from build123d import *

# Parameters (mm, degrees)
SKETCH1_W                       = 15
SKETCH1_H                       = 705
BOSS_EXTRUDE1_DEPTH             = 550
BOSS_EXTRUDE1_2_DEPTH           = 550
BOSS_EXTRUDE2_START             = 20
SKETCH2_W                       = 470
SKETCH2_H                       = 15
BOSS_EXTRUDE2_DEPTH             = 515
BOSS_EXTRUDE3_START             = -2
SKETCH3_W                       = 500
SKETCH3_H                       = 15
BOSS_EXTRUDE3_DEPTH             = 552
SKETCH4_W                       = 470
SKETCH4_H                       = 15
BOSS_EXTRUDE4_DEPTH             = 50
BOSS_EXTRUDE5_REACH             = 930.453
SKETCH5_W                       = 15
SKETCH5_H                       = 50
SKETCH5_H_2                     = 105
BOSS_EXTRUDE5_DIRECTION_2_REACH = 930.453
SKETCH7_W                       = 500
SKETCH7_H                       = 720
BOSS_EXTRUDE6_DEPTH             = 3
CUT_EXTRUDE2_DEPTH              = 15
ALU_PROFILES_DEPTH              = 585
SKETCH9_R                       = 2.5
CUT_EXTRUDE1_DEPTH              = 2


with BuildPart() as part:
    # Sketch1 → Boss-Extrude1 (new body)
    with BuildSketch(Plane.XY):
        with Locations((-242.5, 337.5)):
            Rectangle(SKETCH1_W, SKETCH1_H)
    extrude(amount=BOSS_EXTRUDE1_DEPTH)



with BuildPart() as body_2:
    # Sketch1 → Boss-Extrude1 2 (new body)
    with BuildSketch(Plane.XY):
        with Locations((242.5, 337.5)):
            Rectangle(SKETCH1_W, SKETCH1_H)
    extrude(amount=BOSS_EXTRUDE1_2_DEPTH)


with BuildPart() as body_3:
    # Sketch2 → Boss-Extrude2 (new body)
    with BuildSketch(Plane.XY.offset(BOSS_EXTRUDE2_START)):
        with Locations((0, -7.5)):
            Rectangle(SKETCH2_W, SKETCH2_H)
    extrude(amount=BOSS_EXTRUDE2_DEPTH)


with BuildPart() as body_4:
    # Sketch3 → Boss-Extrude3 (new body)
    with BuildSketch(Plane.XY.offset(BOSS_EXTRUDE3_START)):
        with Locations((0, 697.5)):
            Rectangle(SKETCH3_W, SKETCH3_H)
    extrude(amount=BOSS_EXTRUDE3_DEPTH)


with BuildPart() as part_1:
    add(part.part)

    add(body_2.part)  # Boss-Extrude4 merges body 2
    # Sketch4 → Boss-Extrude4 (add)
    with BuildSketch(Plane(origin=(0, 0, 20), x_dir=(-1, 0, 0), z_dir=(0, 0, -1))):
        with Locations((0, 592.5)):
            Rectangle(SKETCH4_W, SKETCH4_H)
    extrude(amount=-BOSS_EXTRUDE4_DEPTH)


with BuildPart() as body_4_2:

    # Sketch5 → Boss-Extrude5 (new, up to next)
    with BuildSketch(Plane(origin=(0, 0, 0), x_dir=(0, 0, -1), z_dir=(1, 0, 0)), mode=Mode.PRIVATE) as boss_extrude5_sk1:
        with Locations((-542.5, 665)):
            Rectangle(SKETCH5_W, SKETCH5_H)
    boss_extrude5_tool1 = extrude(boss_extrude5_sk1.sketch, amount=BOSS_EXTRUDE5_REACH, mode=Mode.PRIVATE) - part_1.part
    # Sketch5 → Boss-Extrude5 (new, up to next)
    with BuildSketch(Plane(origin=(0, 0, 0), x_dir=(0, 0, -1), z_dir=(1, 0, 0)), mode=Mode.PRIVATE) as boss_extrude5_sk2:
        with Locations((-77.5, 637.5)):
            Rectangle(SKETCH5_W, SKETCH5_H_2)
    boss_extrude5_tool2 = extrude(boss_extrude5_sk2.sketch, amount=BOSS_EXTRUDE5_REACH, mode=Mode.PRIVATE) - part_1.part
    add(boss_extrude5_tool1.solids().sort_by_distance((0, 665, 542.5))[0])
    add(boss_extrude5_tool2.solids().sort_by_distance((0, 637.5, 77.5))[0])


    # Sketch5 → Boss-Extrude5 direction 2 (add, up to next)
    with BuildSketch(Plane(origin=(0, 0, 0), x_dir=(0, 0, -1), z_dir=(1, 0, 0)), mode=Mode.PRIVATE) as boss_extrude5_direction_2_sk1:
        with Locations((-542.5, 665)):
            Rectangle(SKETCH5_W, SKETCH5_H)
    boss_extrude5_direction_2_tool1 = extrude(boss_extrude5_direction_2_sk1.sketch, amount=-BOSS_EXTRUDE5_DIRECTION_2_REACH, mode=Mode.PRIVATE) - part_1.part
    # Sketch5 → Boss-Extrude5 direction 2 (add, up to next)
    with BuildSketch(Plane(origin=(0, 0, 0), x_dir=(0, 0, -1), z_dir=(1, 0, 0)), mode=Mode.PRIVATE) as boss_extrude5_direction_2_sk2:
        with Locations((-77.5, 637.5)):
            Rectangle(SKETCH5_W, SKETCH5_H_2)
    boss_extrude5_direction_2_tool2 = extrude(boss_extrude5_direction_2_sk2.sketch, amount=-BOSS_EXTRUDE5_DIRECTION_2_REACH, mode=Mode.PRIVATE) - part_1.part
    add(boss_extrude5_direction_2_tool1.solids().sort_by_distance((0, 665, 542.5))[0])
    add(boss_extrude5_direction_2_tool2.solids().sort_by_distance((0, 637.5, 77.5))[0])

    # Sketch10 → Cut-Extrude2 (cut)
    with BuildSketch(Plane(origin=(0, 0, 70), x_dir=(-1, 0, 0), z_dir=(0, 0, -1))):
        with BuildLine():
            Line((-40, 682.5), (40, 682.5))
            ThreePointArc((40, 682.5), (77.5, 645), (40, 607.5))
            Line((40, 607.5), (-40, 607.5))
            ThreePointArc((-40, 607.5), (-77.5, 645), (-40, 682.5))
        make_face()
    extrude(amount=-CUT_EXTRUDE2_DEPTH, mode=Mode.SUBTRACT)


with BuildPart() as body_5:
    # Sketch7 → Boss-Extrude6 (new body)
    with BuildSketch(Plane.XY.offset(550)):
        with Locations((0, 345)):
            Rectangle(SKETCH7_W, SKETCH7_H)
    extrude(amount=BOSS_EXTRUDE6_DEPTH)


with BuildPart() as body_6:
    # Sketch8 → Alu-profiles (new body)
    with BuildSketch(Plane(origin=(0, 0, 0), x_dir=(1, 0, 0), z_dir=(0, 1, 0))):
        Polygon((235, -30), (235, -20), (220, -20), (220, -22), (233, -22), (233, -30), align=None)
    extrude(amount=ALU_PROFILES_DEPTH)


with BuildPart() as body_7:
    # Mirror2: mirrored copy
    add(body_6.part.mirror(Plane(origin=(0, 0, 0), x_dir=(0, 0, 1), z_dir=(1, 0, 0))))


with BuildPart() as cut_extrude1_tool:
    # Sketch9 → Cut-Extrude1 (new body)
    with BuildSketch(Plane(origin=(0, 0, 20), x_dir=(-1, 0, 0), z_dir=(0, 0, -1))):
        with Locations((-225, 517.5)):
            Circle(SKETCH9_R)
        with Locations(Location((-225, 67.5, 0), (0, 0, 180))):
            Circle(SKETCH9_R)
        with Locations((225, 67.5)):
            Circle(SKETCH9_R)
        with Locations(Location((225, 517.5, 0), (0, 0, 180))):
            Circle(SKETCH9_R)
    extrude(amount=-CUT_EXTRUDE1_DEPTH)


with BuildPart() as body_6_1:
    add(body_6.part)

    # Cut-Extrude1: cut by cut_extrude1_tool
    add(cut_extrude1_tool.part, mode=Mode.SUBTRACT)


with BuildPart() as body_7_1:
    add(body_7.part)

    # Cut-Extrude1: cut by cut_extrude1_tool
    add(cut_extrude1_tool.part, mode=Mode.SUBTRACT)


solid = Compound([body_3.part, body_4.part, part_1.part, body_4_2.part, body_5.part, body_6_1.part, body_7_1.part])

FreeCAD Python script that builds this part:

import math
import FreeCAD as App
import Part
import Sketcher

doc = App.newDocument("Part")
params = doc.addObject("Spreadsheet::Sheet", "Params")
for row, (alias, value) in enumerate([
    ("sketch1_width", "15 mm"),
    ("sketch1_height", "705 mm"),
    ("pad1_length", "550 mm"),
    ("sketch2_width", "15 mm"),
    ("sketch2_height", "705 mm"),
    ("pad2_length", "550 mm"),
    ("sketch3_width", "470 mm"),
    ("sketch3_height", "15 mm"),
    ("pad3_length", "515 mm"),
    ("sketch4_width", "500 mm"),
    ("sketch4_height", "15 mm"),
    ("pad4_length", "552 mm"),
    ("sketch5_width", "470 mm"),
    ("sketch5_height", "15 mm"),
    ("pad5_length", "50 mm"),
    ("sketch6_width", "50 mm"),
    ("sketch6_height", "15 mm"),
    ("pad6_length", "235 mm"),
    ("sketch7_width", "105 mm"),
    ("sketch7_height", "15 mm"),
    ("pad7_length", "235 mm"),
    ("sketch8_width", "50 mm"),
    ("sketch8_height", "15 mm"),
    ("pad8_length", "235 mm"),
    ("sketch9_width", "105 mm"),
    ("sketch9_height", "15 mm"),
    ("pad9_length", "235 mm"),
    ("sketch10_radius", "37.5 mm"),
    ("sketch10_width", "80 mm"),
    ("pocket1_length", "15 mm"),
    ("sketch11_width", "500 mm"),
    ("sketch11_height", "720 mm"),
    ("pad10_length", "3 mm"),
    ("sketch12_width", "15 mm"),
    ("sketch12_width2", "13 mm"),
    ("sketch12_height", "10 mm"),
    ("pad11_length", "585 mm"),
    ("sketch13_diameter", "5 mm"),
    ("pad12_length", "2 mm"),
], start=1):
    params.set(f"A{row}", alias)
    params.set(f"B{row}", "=" + value)
    params.setAlias(f"B{row}", alias)

body = doc.addObject("PartDesign::Body", "Body")

sketch1 = body.newObject("Sketcher::SketchObject", "Sketch")
sketch1.AttachmentSupport = (doc.getObject("XY_Plane"), [""])
sketch1.MapMode = "FlatFace"
sketch1.addGeometry(Part.LineSegment(App.Vector(-250, 690, 0), App.Vector(-250, -15, 0)), False)
sketch1.addGeometry(Part.LineSegment(App.Vector(-250, -15, 0), App.Vector(-235, -15, 0)), False)
sketch1.addGeometry(Part.LineSegment(App.Vector(-235, -15, 0), App.Vector(-235, 690, 0)), False)
sketch1.addGeometry(Part.LineSegment(App.Vector(-235, 690, 0), App.Vector(-250, 690, 0)), False)
sketch1.addConstraint(Sketcher.Constraint("Coincident", 0, 2, 1, 1))
sketch1.addConstraint(Sketcher.Constraint("Coincident", 1, 2, 2, 1))
sketch1.addConstraint(Sketcher.Constraint("Coincident", 2, 2, 3, 1))
sketch1.addConstraint(Sketcher.Constraint("Coincident", 3, 2, 0, 1))
sketch1.addConstraint(Sketcher.Constraint("Vertical", 0))
sketch1.addConstraint(Sketcher.Constraint("Horizontal", 1))
sketch1.addConstraint(Sketcher.Constraint("Vertical", 2))
sketch1.addConstraint(Sketcher.Constraint("Horizontal", 3))
sketch1.addConstraint(Sketcher.Constraint("DistanceX", 1, 1, 1, 2, 15.0))
sketch1.addConstraint(Sketcher.Constraint("DistanceY", 0, 2, 0, 1, 705.0))
sketch1.addConstraint(Sketcher.Constraint("DistanceX", 0, 2, -1, 1, 250.0))
sketch1.addConstraint(Sketcher.Constraint("DistanceY", 0, 2, -1, 1, 15.0))
sketch1.setExpression("Constraints[8]", "Params.sketch1_width")
sketch1.setExpression("Constraints[9]", "Params.sketch1_height")
pad1 = body.newObject("PartDesign::Pad", "Pad")
pad1.Profile = sketch1
pad1.setExpression("Length", "Params.pad1_length")
body2 = doc.addObject("PartDesign::Body", "Body001")

sketch2 = body2.newObject("Sketcher::SketchObject", "Sketch001")
sketch2.AttachmentSupport = (doc.getObject("XY_Plane001"), [""])
sketch2.MapMode = "FlatFace"
sketch2.addGeometry(Part.LineSegment(App.Vector(235, 690, 0), App.Vector(235, -15, 0)), False)
sketch2.addGeometry(Part.LineSegment(App.Vector(235, -15, 0), App.Vector(250, -15, 0)), False)
sketch2.addGeometry(Part.LineSegment(App.Vector(250, -15, 0), App.Vector(250, 690, 0)), False)
sketch2.addGeometry(Part.LineSegment(App.Vector(250, 690, 0), App.Vector(235, 690, 0)), False)
sketch2.addConstraint(Sketcher.Constraint("Coincident", 0, 2, 1, 1))
sketch2.addConstraint(Sketcher.Constraint("Coincident", 1, 2, 2, 1))
sketch2.addConstraint(Sketcher.Constraint("Coincident", 2, 2, 3, 1))
sketch2.addConstraint(Sketcher.Constraint("Coincident", 3, 2, 0, 1))
sketch2.addConstraint(Sketcher.Constraint("Vertical", 0))
sketch2.addConstraint(Sketcher.Constraint("Horizontal", 1))
sketch2.addConstraint(Sketcher.Constraint("Vertical", 2))
sketch2.addConstraint(Sketcher.Constraint("Horizontal", 3))
sketch2.addConstraint(Sketcher.Constraint("DistanceX", 1, 1, 1, 2, 15.0))
sketch2.addConstraint(Sketcher.Constraint("DistanceY", 0, 2, 0, 1, 705.0))
sketch2.addConstraint(Sketcher.Constraint("DistanceX", -1, 1, 0, 2, 235.0))
sketch2.addConstraint(Sketcher.Constraint("DistanceY", 0, 2, -1, 1, 15.0))
sketch2.setExpression("Constraints[8]", "Params.sketch2_width")
sketch2.setExpression("Constraints[9]", "Params.sketch2_height")
pad2 = body2.newObject("PartDesign::Pad", "Pad001")
pad2.Profile = sketch2
pad2.setExpression("Length", "Params.pad2_length")
body3 = doc.addObject("PartDesign::Body", "Body002")

sketch3 = body3.newObject("Sketcher::SketchObject", "Sketch002")
sketch3.AttachmentSupport = (doc.getObject("XY_Plane002"), [""])
sketch3.MapMode = "FlatFace"
sketch3.AttachmentOffset = App.Placement(App.Vector(0, 0, 20), App.Rotation())
sketch3.addGeometry(Part.LineSegment(App.Vector(-235, 0, 0), App.Vector(-235, -15, 0)), False)
sketch3.addGeometry(Part.LineSegment(App.Vector(-235, -15, 0), App.Vector(235, -15, 0)), False)
sketch3.addGeometry(Part.LineSegment(App.Vector(235, -15, 0), App.Vector(235, 0, 0)), False)
sketch3.addGeometry(Part.LineSegment(App.Vector(235, 0, 0), App.Vector(-235, 0, 0)), False)
sketch3.addConstraint(Sketcher.Constraint("Coincident", 0, 2, 1, 1))
sketch3.addConstraint(Sketcher.Constraint("Coincident", 1, 2, 2, 1))
sketch3.addConstraint(Sketcher.Constraint("Coincident", 2, 2, 3, 1))
sketch3.addConstraint(Sketcher.Constraint("Coincident", 3, 2, 0, 1))
sketch3.addConstraint(Sketcher.Constraint("Vertical", 0))
sketch3.addConstraint(Sketcher.Constraint("Horizontal", 1))
sketch3.addConstraint(Sketcher.Constraint("Vertical", 2))
sketch3.addConstraint(Sketcher.Constraint("Horizontal", 3))
sketch3.addConstraint(Sketcher.Constraint("Symmetric", 2, 2, 3, 2, -1, 1))
sketch3.addConstraint(Sketcher.Constraint("DistanceX", 1, 1, 1, 2, 470.0))
sketch3.addConstraint(Sketcher.Constraint("DistanceY", 0, 2, 0, 1, 15.0))
sketch3.setExpression("Constraints[9]", "Params.sketch3_width")
sketch3.setExpression("Constraints[10]", "Params.sketch3_height")
pad3 = body3.newObject("PartDesign::Pad", "Pad002")
pad3.Profile = sketch3
pad3.setExpression("Length", "Params.pad3_length")
body4 = doc.addObject("PartDesign::Body", "Body003")

sketch4 = body4.newObject("Sketcher::SketchObject", "Sketch003")
sketch4.AttachmentSupport = (doc.getObject("XY_Plane003"), [""])
sketch4.MapMode = "FlatFace"
sketch4.AttachmentOffset = App.Placement(App.Vector(0, 0, -2), App.Rotation())
sketch4.addGeometry(Part.LineSegment(App.Vector(-250, 705, 0), App.Vector(-250, 690, 0)), False)
sketch4.addGeometry(Part.LineSegment(App.Vector(-250, 690, 0), App.Vector(250, 690, 0)), False)
sketch4.addGeometry(Part.LineSegment(App.Vector(250, 690, 0), App.Vector(250, 705, 0)), False)
sketch4.addGeometry(Part.LineSegment(App.Vector(250, 705, 0), App.Vector(-250, 705, 0)), False)
sketch4.addConstraint(Sketcher.Constraint("Coincident", 0, 2, 1, 1))
sketch4.addConstraint(Sketcher.Constraint("Coincident", 1, 2, 2, 1))
sketch4.addConstraint(Sketcher.Constraint("Coincident", 2, 2, 3, 1))
sketch4.addConstraint(Sketcher.Constraint("Coincident", 3, 2, 0, 1))
sketch4.addConstraint(Sketcher.Constraint("Vertical", 0))
sketch4.addConstraint(Sketcher.Constraint("Horizontal", 1))
sketch4.addConstraint(Sketcher.Constraint("Vertical", 2))
sketch4.addConstraint(Sketcher.Constraint("Horizontal", 3))
sketch4.addConstraint(Sketcher.Constraint("DistanceX", 1, 1, 1, 2, 500.0))
sketch4.addConstraint(Sketcher.Constraint("DistanceY", 0, 2, 0, 1, 15.0))
sketch4.addConstraint(Sketcher.Constraint("DistanceX", 0, 2, -1, 1, 250.0))
sketch4.addConstraint(Sketcher.Constraint("DistanceY", -1, 1, 0, 2, 690.0))
sketch4.setExpression("Constraints[8]", "Params.sketch4_width")
sketch4.setExpression("Constraints[9]", "Params.sketch4_height")
pad4 = body4.newObject("PartDesign::Pad", "Pad003")
pad4.Profile = sketch4
pad4.setExpression("Length", "Params.pad4_length")
body.AllowCompound = True
doc.recompute()

boolean = body.newObject("PartDesign::Boolean", "Boolean")
boolean.Type = "Fuse"
boolean.addObjects([body2])

sketch5 = body.newObject("Sketcher::SketchObject", "Sketch004")
sketch5.AttachmentSupport = (doc.getObject("XY_Plane"), [""])
sketch5.MapMode = "FlatFace"
sketch5.AttachmentOffset = App.Placement(App.Vector(0, 0, 20), App.Rotation())
sketch5.addGeometry(Part.LineSegment(App.Vector(235, 600, 0), App.Vector(235, 585, 0)), False)
sketch5.addGeometry(Part.LineSegment(App.Vector(235, 585, 0), App.Vector(-235, 585, 0)), False)
sketch5.addGeometry(Part.LineSegment(App.Vector(-235, 585, 0), App.Vector(-235, 600, 0)), False)
sketch5.addGeometry(Part.LineSegment(App.Vector(-235, 600, 0), App.Vector(235, 600, 0)), False)
sketch5.addConstraint(Sketcher.Constraint("Coincident", 0, 2, 1, 1))
sketch5.addConstraint(Sketcher.Constraint("Coincident", 1, 2, 2, 1))
sketch5.addConstraint(Sketcher.Constraint("Coincident", 2, 2, 3, 1))
sketch5.addConstraint(Sketcher.Constraint("Coincident", 3, 2, 0, 1))
sketch5.addConstraint(Sketcher.Constraint("Vertical", 0))
sketch5.addConstraint(Sketcher.Constraint("Horizontal", 1))
sketch5.addConstraint(Sketcher.Constraint("Vertical", 2))
sketch5.addConstraint(Sketcher.Constraint("Horizontal", 3))
sketch5.addConstraint(Sketcher.Constraint("DistanceX", 1, 2, 1, 1, 470.0))
sketch5.addConstraint(Sketcher.Constraint("DistanceY", 0, 2, 0, 1, 15.0))
sketch5.addConstraint(Sketcher.Constraint("DistanceX", -1, 1, 0, 2, 235.0))
sketch5.addConstraint(Sketcher.Constraint("DistanceY", -1, 1, 0, 2, 585.0))
sketch5.setExpression("Constraints[8]", "Params.sketch5_width")
sketch5.setExpression("Constraints[9]", "Params.sketch5_height")
pad5 = body.newObject("PartDesign::Pad", "Pad004")
pad5.Profile = sketch5
pad5.setExpression("Length", "Params.pad5_length")
body5 = doc.addObject("PartDesign::Body", "Body004")
body5.AllowCompound = True

sketch6 = body5.newObject("Sketcher::SketchObject", "Sketch005")
sketch6.AttachmentSupport = (doc.getObject("YZ_Plane004"), [""])
sketch6.MapMode = "FlatFace"
sketch6.addGeometry(Part.LineSegment(App.Vector(690, 550, 0), App.Vector(640, 550, 0)), False)
sketch6.addGeometry(Part.LineSegment(App.Vector(640, 550, 0), App.Vector(640, 535, 0)), False)
sketch6.addGeometry(Part.LineSegment(App.Vector(640, 535, 0), App.Vector(690, 535, 0)), False)
sketch6.addGeometry(Part.LineSegment(App.Vector(690, 535, 0), App.Vector(690, 550, 0)), False)
sketch6.addConstraint(Sketcher.Constraint("Coincident", 0, 2, 1, 1))
sketch6.addConstraint(Sketcher.Constraint("Coincident", 1, 2, 2, 1))
sketch6.addConstraint(Sketcher.Constraint("Coincident", 2, 2, 3, 1))
sketch6.addConstraint(Sketcher.Constraint("Coincident", 3, 2, 0, 1))
sketch6.addConstraint(Sketcher.Constraint("Horizontal", 0))
sketch6.addConstraint(Sketcher.Constraint("Vertical", 1))
sketch6.addConstraint(Sketcher.Constraint("Horizontal", 2))
sketch6.addConstraint(Sketcher.Constraint("Vertical", 3))
sketch6.addConstraint(Sketcher.Constraint("DistanceX", 0, 2, 0, 1, 50.0))
sketch6.addConstraint(Sketcher.Constraint("DistanceY", 1, 2, 1, 1, 15.0))
sketch6.addConstraint(Sketcher.Constraint("DistanceX", -1, 1, 0, 2, 640.0))
sketch6.addConstraint(Sketcher.Constraint("DistanceY", -1, 1, 0, 2, 550.0))
sketch6.setExpression("Constraints[8]", "Params.sketch6_width")
sketch6.setExpression("Constraints[9]", "Params.sketch6_height")
pad6 = body5.newObject("PartDesign::Pad", "Pad005")
pad6.Profile = sketch6
pad6.setExpression("Length", "Params.pad6_length")

sketch7 = body5.newObject("Sketcher::SketchObject", "Sketch006")
sketch7.AttachmentSupport = (doc.getObject("YZ_Plane004"), [""])
sketch7.MapMode = "FlatFace"
sketch7.addGeometry(Part.LineSegment(App.Vector(690, 85, 0), App.Vector(585, 85, 0)), False)
sketch7.addGeometry(Part.LineSegment(App.Vector(585, 85, 0), App.Vector(585, 70, 0)), False)
sketch7.addGeometry(Part.LineSegment(App.Vector(585, 70, 0), App.Vector(690, 70, 0)), False)
sketch7.addGeometry(Part.LineSegment(App.Vector(690, 70, 0), App.Vector(690, 85, 0)), False)
sketch7.addConstraint(Sketcher.Constraint("Coincident", 0, 2, 1, 1))
sketch7.addConstraint(Sketcher.Constraint("Coincident", 1, 2, 2, 1))
sketch7.addConstraint(Sketcher.Constraint("Coincident", 2, 2, 3, 1))
sketch7.addConstraint(Sketcher.Constraint("Coincident", 3, 2, 0, 1))
sketch7.addConstraint(Sketcher.Constraint("Horizontal", 0))
sketch7.addConstraint(Sketcher.Constraint("Vertical", 1))
sketch7.addConstraint(Sketcher.Constraint("Horizontal", 2))
sketch7.addConstraint(Sketcher.Constraint("Vertical", 3))
sketch7.addConstraint(Sketcher.Constraint("DistanceX", 0, 2, 0, 1, 105.0))
sketch7.addConstraint(Sketcher.Constraint("DistanceY", 1, 2, 1, 1, 15.0))
sketch7.addConstraint(Sketcher.Constraint("DistanceX", -1, 1, 0, 2, 585.0))
sketch7.addConstraint(Sketcher.Constraint("DistanceY", -1, 1, 0, 2, 85.0))
sketch7.setExpression("Constraints[8]", "Params.sketch7_width")
sketch7.setExpression("Constraints[9]", "Params.sketch7_height")
pad7 = body5.newObject("PartDesign::Pad", "Pad006")
pad7.Profile = sketch7
pad7.setExpression("Length", "Params.pad7_length")

sketch8 = body5.newObject("Sketcher::SketchObject", "Sketch007")
sketch8.AttachmentSupport = (doc.getObject("YZ_Plane004"), [""])
sketch8.MapMode = "FlatFace"
sketch8.addGeometry(Part.LineSegment(App.Vector(690, 550, 0), App.Vector(640, 550, 0)), False)
sketch8.addGeometry(Part.LineSegment(App.Vector(640, 550, 0), App.Vector(640, 535, 0)), False)
sketch8.addGeometry(Part.LineSegment(App.Vector(640, 535, 0), App.Vector(690, 535, 0)), False)
sketch8.addGeometry(Part.LineSegment(App.Vector(690, 535, 0), App.Vector(690, 550, 0)), False)
sketch8.addConstraint(Sketcher.Constraint("Coincident", 0, 2, 1, 1))
sketch8.addConstraint(Sketcher.Constraint("Coincident", 1, 2, 2, 1))
sketch8.addConstraint(Sketcher.Constraint("Coincident", 2, 2, 3, 1))
sketch8.addConstraint(Sketcher.Constraint("Coincident", 3, 2, 0, 1))
sketch8.addConstraint(Sketcher.Constraint("Horizontal", 0))
sketch8.addConstraint(Sketcher.Constraint("Vertical", 1))
sketch8.addConstraint(Sketcher.Constraint("Horizontal", 2))
sketch8.addConstraint(Sketcher.Constraint("Vertical", 3))
sketch8.addConstraint(Sketcher.Constraint("DistanceX", 0, 2, 0, 1, 50.0))
sketch8.addConstraint(Sketcher.Constraint("DistanceY", 1, 2, 1, 1, 15.0))
sketch8.addConstraint(Sketcher.Constraint("DistanceX", -1, 1, 0, 2, 640.0))
sketch8.addConstraint(Sketcher.Constraint("DistanceY", -1, 1, 0, 2, 550.0))
sketch8.setExpression("Constraints[8]", "Params.sketch8_width")
sketch8.setExpression("Constraints[9]", "Params.sketch8_height")
pad8 = body5.newObject("PartDesign::Pad", "Pad007")
pad8.Profile = sketch8
pad8.setExpression("Length", "Params.pad8_length")
pad8.Reversed = True

sketch9 = body5.newObject("Sketcher::SketchObject", "Sketch008")
sketch9.AttachmentSupport = (doc.getObject("YZ_Plane004"), [""])
sketch9.MapMode = "FlatFace"
sketch9.addGeometry(Part.LineSegment(App.Vector(690, 85, 0), App.Vector(585, 85, 0)), False)
sketch9.addGeometry(Part.LineSegment(App.Vector(585, 85, 0), App.Vector(585, 70, 0)), False)
sketch9.addGeometry(Part.LineSegment(App.Vector(585, 70, 0), App.Vector(690, 70, 0)), False)
sketch9.addGeometry(Part.LineSegment(App.Vector(690, 70, 0), App.Vector(690, 85, 0)), False)
sketch9.addConstraint(Sketcher.Constraint("Coincident", 0, 2, 1, 1))
sketch9.addConstraint(Sketcher.Constraint("Coincident", 1, 2, 2, 1))
sketch9.addConstraint(Sketcher.Constraint("Coincident", 2, 2, 3, 1))
sketch9.addConstraint(Sketcher.Constraint("Coincident", 3, 2, 0, 1))
sketch9.addConstraint(Sketcher.Constraint("Horizontal", 0))
sketch9.addConstraint(Sketcher.Constraint("Vertical", 1))
sketch9.addConstraint(Sketcher.Constraint("Horizontal", 2))
sketch9.addConstraint(Sketcher.Constraint("Vertical", 3))
sketch9.addConstraint(Sketcher.Constraint("DistanceX", 0, 2, 0, 1, 105.0))
sketch9.addConstraint(Sketcher.Constraint("DistanceY", 1, 2, 1, 1, 15.0))
sketch9.addConstraint(Sketcher.Constraint("DistanceX", -1, 1, 0, 2, 585.0))
sketch9.addConstraint(Sketcher.Constraint("DistanceY", -1, 1, 0, 2, 85.0))
sketch9.setExpression("Constraints[8]", "Params.sketch9_width")
sketch9.setExpression("Constraints[9]", "Params.sketch9_height")
pad9 = body5.newObject("PartDesign::Pad", "Pad008")
pad9.Profile = sketch9
pad9.setExpression("Length", "Params.pad9_length")
pad9.Reversed = True

sketch10 = body5.newObject("Sketcher::SketchObject", "Sketch009")
sketch10.AttachmentSupport = (doc.getObject("XY_Plane004"), [""])
sketch10.MapMode = "FlatFace"
sketch10.AttachmentOffset = App.Placement(App.Vector(0, 0, 70), App.Rotation())
sketch10.addGeometry(Part.LineSegment(App.Vector(-40, 682, 0), App.Vector(40, 682, 0)), False)
sketch10.addGeometry(Part.ArcOfCircle(Part.Circle(App.Vector(40, 645, 0), App.Vector(0, 0, 1), 38), math.radians(-90), math.radians(90)), False)
sketch10.addGeometry(Part.LineSegment(App.Vector(40, 608, 0), App.Vector(-40, 608, 0)), False)
sketch10.addGeometry(Part.ArcOfCircle(Part.Circle(App.Vector(-40, 645, 0), App.Vector(0, 0, 1), 38), math.radians(90), math.radians(270)), False)
sketch10.addConstraint(Sketcher.Constraint("Tangent", 0, 2, 1, 2))
sketch10.addConstraint(Sketcher.Constraint("Tangent", 1, 1, 2, 1))
sketch10.addConstraint(Sketcher.Constraint("Tangent", 2, 2, 3, 2))
sketch10.addConstraint(Sketcher.Constraint("Tangent", 3, 1, 0, 1))
sketch10.addConstraint(Sketcher.Constraint("Horizontal", 0))
sketch10.addConstraint(Sketcher.Constraint("Horizontal", 2))
sketch10.addConstraint(Sketcher.Constraint("Radius", 1, 37.5))
sketch10.addConstraint(Sketcher.Constraint("DistanceX", 0, 1, 0, 2, 80.0))
sketch10.addConstraint(Sketcher.Constraint("DistanceX", -1, 1, 1, 3, 40.0))
sketch10.addConstraint(Sketcher.Constraint("DistanceY", -1, 1, 1, 3, 645.0))
sketch10.setExpression("Constraints[6]", "Params.sketch10_radius")
sketch10.setExpression("Constraints[7]", "Params.sketch10_width")
pocket1 = body5.newObject("PartDesign::Pocket", "Pocket")
pocket1.Profile = sketch10
pocket1.setExpression("Length", "Params.pocket1_length")
pocket1.Reversed = True
body6 = doc.addObject("PartDesign::Body", "Body005")

sketch11 = body6.newObject("Sketcher::SketchObject", "Sketch010")
sketch11.AttachmentSupport = (doc.getObject("XY_Plane005"), [""])
sketch11.MapMode = "FlatFace"
sketch11.AttachmentOffset = App.Placement(App.Vector(0, 0, 550), App.Rotation())
sketch11.addGeometry(Part.LineSegment(App.Vector(-250, 705, 0), App.Vector(-250, -15, 0)), False)
sketch11.addGeometry(Part.LineSegment(App.Vector(-250, -15, 0), App.Vector(250, -15, 0)), False)
sketch11.addGeometry(Part.LineSegment(App.Vector(250, -15, 0), App.Vector(250, 705, 0)), False)
sketch11.addGeometry(Part.LineSegment(App.Vector(250, 705, 0), App.Vector(-250, 705, 0)), False)
sketch11.addConstraint(Sketcher.Constraint("Coincident", 0, 2, 1, 1))
sketch11.addConstraint(Sketcher.Constraint("Coincident", 1, 2, 2, 1))
sketch11.addConstraint(Sketcher.Constraint("Coincident", 2, 2, 3, 1))
sketch11.addConstraint(Sketcher.Constraint("Coincident", 3, 2, 0, 1))
sketch11.addConstraint(Sketcher.Constraint("Vertical", 0))
sketch11.addConstraint(Sketcher.Constraint("Horizontal", 1))
sketch11.addConstraint(Sketcher.Constraint("Vertical", 2))
sketch11.addConstraint(Sketcher.Constraint("Horizontal", 3))
sketch11.addConstraint(Sketcher.Constraint("DistanceX", 1, 1, 1, 2, 500.0))
sketch11.addConstraint(Sketcher.Constraint("DistanceY", 0, 2, 0, 1, 720.0))
sketch11.addConstraint(Sketcher.Constraint("DistanceX", 0, 2, -1, 1, 250.0))
sketch11.addConstraint(Sketcher.Constraint("DistanceY", 0, 2, -1, 1, 15.0))
sketch11.setExpression("Constraints[8]", "Params.sketch11_width")
sketch11.setExpression("Constraints[9]", "Params.sketch11_height")
pad10 = body6.newObject("PartDesign::Pad", "Pad009")
pad10.Profile = sketch11
pad10.setExpression("Length", "Params.pad10_length")
body7 = doc.addObject("PartDesign::Body", "Body006")

sketch12 = body7.newObject("Sketcher::SketchObject", "Sketch011")
sketch12.AttachmentSupport = (doc.getObject("XZ_Plane006"), [""])
sketch12.MapMode = "FlatFace"
sketch12.addGeometry(Part.LineSegment(App.Vector(235, 30, 0), App.Vector(235, 20, 0)), False)
sketch12.addGeometry(Part.LineSegment(App.Vector(235, 20, 0), App.Vector(220, 20, 0)), False)
sketch12.addGeometry(Part.LineSegment(App.Vector(220, 20, 0), App.Vector(220, 22, 0)), False)
sketch12.addGeometry(Part.LineSegment(App.Vector(220, 22, 0), App.Vector(233, 22, 0)), False)
sketch12.addGeometry(Part.LineSegment(App.Vector(233, 22, 0), App.Vector(233, 30, 0)), False)
sketch12.addGeometry(Part.LineSegment(App.Vector(233, 30, 0), App.Vector(235, 30, 0)), False)
sketch12.addConstraint(Sketcher.Constraint("Coincident", 0, 2, 1, 1))
sketch12.addConstraint(Sketcher.Constraint("Coincident", 1, 2, 2, 1))
sketch12.addConstraint(Sketcher.Constraint("Coincident", 2, 2, 3, 1))
sketch12.addConstraint(Sketcher.Constraint("Coincident", 3, 2, 4, 1))
sketch12.addConstraint(Sketcher.Constraint("Coincident", 4, 2, 5, 1))
sketch12.addConstraint(Sketcher.Constraint("Coincident", 5, 2, 0, 1))
sketch12.addConstraint(Sketcher.Constraint("Vertical", 0))
sketch12.addConstraint(Sketcher.Constraint("Horizontal", 1))
sketch12.addConstraint(Sketcher.Constraint("Vertical", 2))
sketch12.addConstraint(Sketcher.Constraint("Horizontal", 3))
sketch12.addConstraint(Sketcher.Constraint("Vertical", 4))
sketch12.addConstraint(Sketcher.Constraint("Horizontal", 5))
sketch12.addConstraint(Sketcher.Constraint("Equal", 5, 2))
sketch12.addConstraint(Sketcher.Constraint("DistanceX", 1, 2, 1, 1, 15.0))
sketch12.addConstraint(Sketcher.Constraint("DistanceX", 3, 1, 3, 2, 13.0))
sketch12.addConstraint(Sketcher.Constraint("DistanceY", 0, 2, 0, 1, 10.0))
sketch12.addConstraint(Sketcher.Constraint("DistanceX", -1, 1, 0, 2, 235.0))
sketch12.addConstraint(Sketcher.Constraint("DistanceY", -1, 1, 0, 2, 20.0))
sketch12.setExpression("Constraints[13]", "Params.sketch12_width")
sketch12.setExpression("Constraints[14]", "Params.sketch12_width2")
sketch12.setExpression("Constraints[15]", "Params.sketch12_height")
pad11 = body7.newObject("PartDesign::Pad", "Pad010")
pad11.Profile = sketch12
pad11.setExpression("Length", "Params.pad11_length")
pad11.Reversed = True
body8 = doc.addObject("PartDesign::Body", "Body007")
doc.recompute()

mirroring = doc.addObject("Part::Mirroring", "Mirroring")
mirroring.Source = body7
mirroring.Base = App.Vector(0, 0, 0)
mirroring.Normal = App.Vector(1, 0, 0)
body8.BaseFeature = mirroring
doc.recompute()
body9 = doc.addObject("PartDesign::Body", "Body008")
body9.AllowCompound = True

sketch13 = body9.newObject("Sketcher::SketchObject", "Sketch012")
sketch13.AttachmentSupport = (doc.getObject("XY_Plane008"), [""])
sketch13.MapMode = "FlatFace"
sketch13.AttachmentOffset = App.Placement(App.Vector(0, 0, 20), App.Rotation())
sketch13.addGeometry(Part.Circle(App.Vector(225, 517.5, 0), App.Vector(0, 0, 1), 2.5), False)
sketch13.addGeometry(Part.Circle(App.Vector(225, 67.5, 0), App.Vector(0, 0, 1), 2.5), False)
sketch13.addGeometry(Part.Circle(App.Vector(-225, 67.5, 0), App.Vector(0, 0, 1), 2.5), False)
sketch13.addGeometry(Part.Circle(App.Vector(-225, 517.5, 0), App.Vector(0, 0, 1), 2.5), False)
sketch13.addConstraint(Sketcher.Constraint("Equal", 0, 1))
sketch13.addConstraint(Sketcher.Constraint("Equal", 1, 2))
sketch13.addConstraint(Sketcher.Constraint("Equal", 2, 3))
sketch13.addConstraint(Sketcher.Constraint("Symmetric", 1, 3, 2, 3, -2))
sketch13.addConstraint(Sketcher.Constraint("Symmetric", 0, 3, 3, 3, -2))
sketch13.addConstraint(Sketcher.Constraint("Vertical", 0, 3, 1, 3))
sketch13.addConstraint(Sketcher.Constraint("Diameter", 0, 5.0))
sketch13.addConstraint(Sketcher.Constraint("DistanceX", -1, 1, 0, 3, 225.0))
sketch13.addConstraint(Sketcher.Constraint("DistanceY", 1, 3, 0, 3, 450.0))
sketch13.addConstraint(Sketcher.Constraint("DistanceY", -1, 1, 0, 3, 517.5))
sketch13.setExpression("Constraints[6]", "Params.sketch13_diameter")
pad12 = body9.newObject("PartDesign::Pad", "Pad011")
pad12.Profile = sketch13
pad12.setExpression("Length", "Params.pad12_length")
doc.recompute()

body10 = doc.addObject("PartDesign::Body", "Body009")
body10.BaseFeature = body9
boolean2 = body7.newObject("PartDesign::Boolean", "Boolean001")
boolean2.Type = "Cut"
boolean2.addObjects([body10])
doc.recompute()

boolean3 = body8.newObject("PartDesign::Boolean", "Boolean002")
boolean3.Type = "Cut"
boolean3.addObjects([body9])
mirroring.Visibility = False

doc.recompute()
